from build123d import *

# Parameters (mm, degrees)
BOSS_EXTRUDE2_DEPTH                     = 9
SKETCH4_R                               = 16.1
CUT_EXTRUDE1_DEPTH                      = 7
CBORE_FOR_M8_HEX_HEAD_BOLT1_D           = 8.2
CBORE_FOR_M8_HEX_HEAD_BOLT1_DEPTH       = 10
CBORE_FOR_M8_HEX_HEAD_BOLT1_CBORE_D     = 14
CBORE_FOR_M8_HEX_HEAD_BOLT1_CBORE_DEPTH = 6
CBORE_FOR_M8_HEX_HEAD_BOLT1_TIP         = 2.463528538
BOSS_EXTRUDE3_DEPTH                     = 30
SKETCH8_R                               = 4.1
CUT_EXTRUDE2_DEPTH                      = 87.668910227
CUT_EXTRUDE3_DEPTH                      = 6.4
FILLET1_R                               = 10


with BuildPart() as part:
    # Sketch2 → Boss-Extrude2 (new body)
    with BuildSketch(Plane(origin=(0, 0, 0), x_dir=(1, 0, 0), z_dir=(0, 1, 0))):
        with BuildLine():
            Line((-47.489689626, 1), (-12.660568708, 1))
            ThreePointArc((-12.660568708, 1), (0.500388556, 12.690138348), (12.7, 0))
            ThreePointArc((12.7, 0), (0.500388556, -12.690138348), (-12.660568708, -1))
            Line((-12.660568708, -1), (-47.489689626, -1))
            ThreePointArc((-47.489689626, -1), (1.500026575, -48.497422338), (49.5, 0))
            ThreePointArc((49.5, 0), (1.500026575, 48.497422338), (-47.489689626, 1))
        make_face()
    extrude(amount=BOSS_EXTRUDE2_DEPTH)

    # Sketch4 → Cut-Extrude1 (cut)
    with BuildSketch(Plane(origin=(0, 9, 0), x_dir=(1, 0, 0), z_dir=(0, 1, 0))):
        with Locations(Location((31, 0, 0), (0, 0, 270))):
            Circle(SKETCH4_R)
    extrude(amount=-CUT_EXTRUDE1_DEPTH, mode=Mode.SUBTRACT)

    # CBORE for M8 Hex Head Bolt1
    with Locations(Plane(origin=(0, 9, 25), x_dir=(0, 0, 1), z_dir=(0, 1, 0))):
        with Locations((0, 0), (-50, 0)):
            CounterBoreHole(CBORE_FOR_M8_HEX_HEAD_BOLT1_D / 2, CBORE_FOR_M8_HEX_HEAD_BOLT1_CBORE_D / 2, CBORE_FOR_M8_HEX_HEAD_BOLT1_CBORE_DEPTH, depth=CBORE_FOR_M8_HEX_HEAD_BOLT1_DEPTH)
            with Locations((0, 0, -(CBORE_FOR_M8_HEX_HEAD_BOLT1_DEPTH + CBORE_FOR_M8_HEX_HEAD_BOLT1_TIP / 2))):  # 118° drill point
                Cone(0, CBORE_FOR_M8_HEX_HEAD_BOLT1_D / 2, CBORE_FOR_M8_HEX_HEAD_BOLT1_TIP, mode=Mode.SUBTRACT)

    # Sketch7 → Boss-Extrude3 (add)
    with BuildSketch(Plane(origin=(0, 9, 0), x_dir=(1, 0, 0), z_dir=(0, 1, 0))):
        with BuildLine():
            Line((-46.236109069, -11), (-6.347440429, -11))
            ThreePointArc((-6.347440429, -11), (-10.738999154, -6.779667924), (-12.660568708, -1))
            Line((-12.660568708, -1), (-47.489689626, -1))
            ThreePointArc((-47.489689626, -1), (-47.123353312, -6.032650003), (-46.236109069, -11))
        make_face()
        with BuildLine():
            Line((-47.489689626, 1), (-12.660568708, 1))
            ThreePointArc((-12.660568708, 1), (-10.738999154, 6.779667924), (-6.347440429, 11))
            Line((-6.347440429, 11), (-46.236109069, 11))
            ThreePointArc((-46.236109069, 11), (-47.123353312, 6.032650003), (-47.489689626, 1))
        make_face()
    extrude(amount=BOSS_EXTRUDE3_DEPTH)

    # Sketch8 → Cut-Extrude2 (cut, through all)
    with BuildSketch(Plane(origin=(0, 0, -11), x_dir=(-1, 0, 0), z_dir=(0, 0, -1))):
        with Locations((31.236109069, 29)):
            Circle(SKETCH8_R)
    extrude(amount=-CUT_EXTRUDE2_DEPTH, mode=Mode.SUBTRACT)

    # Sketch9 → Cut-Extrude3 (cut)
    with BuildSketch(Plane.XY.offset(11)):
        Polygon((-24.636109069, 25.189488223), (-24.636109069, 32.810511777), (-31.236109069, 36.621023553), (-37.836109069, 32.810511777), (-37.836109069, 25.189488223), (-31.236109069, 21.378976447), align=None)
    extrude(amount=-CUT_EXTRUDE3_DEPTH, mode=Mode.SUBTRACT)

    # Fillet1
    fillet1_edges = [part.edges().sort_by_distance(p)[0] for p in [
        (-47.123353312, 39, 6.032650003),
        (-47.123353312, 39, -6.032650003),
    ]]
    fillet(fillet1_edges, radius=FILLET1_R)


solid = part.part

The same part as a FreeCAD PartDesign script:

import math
import FreeCAD as App
import Part
import Sketcher
Q = App.Units.Quantity


def edges_at(feature, points):
    """Names of the edges that pass closest to the given points."""
    edges = feature.Shape.Edges
    near = lambda p: min(range(len(edges)), key=lambda i: edges[i].distToShape(Part.Vertex(*p))[0])
    return sorted({f"Edge{near(p) + 1}" for p in points})

doc = App.newDocument("Part")
body = doc.addObject("PartDesign::Body", "Body")

sketch1 = body.newObject("Sketcher::SketchObject", "Sketch")
sketch1.AttachmentSupport = (doc.getObject("XZ_Plane"), [""])
sketch1.MapMode = "FlatFace"
sketch1.addGeometry([
    Part.LineSegment(App.Vector(-47, -1, 0), App.Vector(-13, -1, 0)),
    Part.ArcOfCircle(Part.Circle(App.Vector(0, 0, 0), App.Vector(0, 0, 1), 13), math.radians(-175), math.radians(0)),
    Part.ArcOfCircle(Part.Circle(App.Vector(0, 0, 0), App.Vector(0, 0, 1), 13), math.radians(0), math.radians(175)),
    Part.LineSegment(App.Vector(-13, 1, 0), App.Vector(-47, 1, 0)),
    Part.ArcOfCircle(Part.Circle(App.Vector(1, 0, 0), App.Vector(0, 0, 1), 48), math.radians(0), math.radians(179)),
    Part.ArcOfCircle(Part.Circle(App.Vector(1, 0, 0), App.Vector(0, 0, 1), 48), math.radians(-179), math.radians(0)),
], False)
sketch1.addConstraint([
    Sketcher.Constraint("Coincident", 0, 2, 1, 1),
    Sketcher.Constraint("Tangent", 1, 2, 2, 1),
    Sketcher.Constraint("Coincident", 2, 2, 3, 1),
    Sketcher.Constraint("Coincident", 3, 2, 4, 2),
    Sketcher.Constraint("Tangent", 4, 1, 5, 2),
    Sketcher.Constraint("Coincident", 5, 1, 0, 1),
    Sketcher.Constraint("Horizontal", 0),
    Sketcher.Constraint("Horizontal", 3),
    Sketcher.Constraint("Coincident", 1, 3, -1, 1),
    Sketcher.Constraint("Equal", 1, 2),
    Sketcher.Constraint("Equal", 4, 5),
    Sketcher.Constraint("Symmetric", 3, 2, 5, 1, -1),
    Sketcher.Constraint("PointOnObject", 1, 2, -1),
    Sketcher.Constraint("PointOnObject", 4, 1, -1),
    Sketcher.Constraint("Radius", 1, 12.7),
    Sketcher.Constraint("Radius", 4, 48.5),
    Sketcher.Constraint("DistanceX", -1, 1, 4, 3, 1.0),
    Sketcher.Constraint("DistanceY", 0, 2, -1, 1, 1.0),
])
pad1 = body.newObject("PartDesign::Pad", "Pad")
pad1.Profile = sketch1
pad1.Length = 9
pad1.Reversed = True

sketch2 = body.newObject("Sketcher::SketchObject", "Sketch001")
sketch2.AttachmentSupport = (doc.getObject("XZ_Plane"), [""])
sketch2.MapMode = "FlatFace"
sketch2.AttachmentOffset = App.Placement(App.Vector(0, 0, -9), App.Rotation())
sketch2.addGeometry(Part.Circle(App.Vector(31, 0, 0), App.Vector(0, 0, 1), 16), False)
sketch2.addConstraint([
    Sketcher.Constraint("PointOnObject", 0, 3, -1),
    Sketcher.Constraint("Diameter", 0, 32.2),
    Sketcher.Constraint("DistanceX", -1, 1, 0, 3, 31.0),
])
pocket1 = body.newObject("PartDesign::Pocket", "Pocket")
pocket1.Profile = sketch2
pocket1.Length = 7
pocket1.Reversed = True

sketch3 = body.newObject("Sketcher::SketchObject", "Sketch002")
sketch3.AttachmentSupport = (doc.getObject("XZ_Plane"), [""])
sketch3.MapMode = "FlatFace"
sketch3.AttachmentOffset = App.Placement(App.Vector(0, 0, -9), App.Rotation())
sketch3.addGeometry([
    Part.Circle(App.Vector(0, 25, 0), App.Vector(0, 0, 1), 4.1),
    Part.Circle(App.Vector(0, -25, 0), App.Vector(0, 0, 1), 4.1),
], False)
sketch3.addConstraint([
    Sketcher.Constraint("Equal", 0, 1),
    Sketcher.Constraint("Symmetric", 0, 3, 1, 3, -1, 1),
    Sketcher.Constraint("PointOnObject", 0, 3, -2),
    Sketcher.Constraint("Diameter", 0, 8.2),
    Sketcher.Constraint("DistanceY", -1, 1, 0, 3, 25.0),
])
doc.recompute()
hole = body.newObject("PartDesign::Hole", "Hole")
hole.Profile = sketch3
hole.ThreadType = "None"
hole.Diameter = 8.2
hole.DepthType = "Dimension"
hole.Depth = 10
hole.DrillPoint = "Angled"
hole.DrillPointAngle = 118
hole.HoleCutType = "Counterbore"
hole.HoleCutDiameter = 14
hole.HoleCutDepth = 6
hole.Reversed = True

sketch4 = body.newObject("Sketcher::SketchObject", "Sketch003")
sketch4.AttachmentSupport = (doc.getObject("XZ_Plane"), [""])
sketch4.MapMode = "FlatFace"
sketch4.AttachmentOffset = App.Placement(App.Vector(0, 0, -9), App.Rotation())
sketch4.addGeometry([
    Part.LineSegment(App.Vector(-46, 11, 0), App.Vector(-6, 11, 0)),
    Part.ArcOfCircle(Part.Circle(App.Vector(0, 0, 0), App.Vector(0, 0, 1), 13), math.radians(120), math.radians(175)),
    Part.LineSegment(App.Vector(-13, 1, 0), App.Vector(-47, 1, 0)),
    Part.ArcOfCircle(Part.Circle(App.Vector(1, 0, 0), App.Vector(0, 0, 1), 48), math.radians(166.89), math.radians(178.82)),
    Part.LineSegment(App.Vector(-47, -1, 0), App.Vector(-13, -1, 0)),
    Part.ArcOfCircle(Part.Circle(App.Vector(0, 0, 0), App.Vector(0, 0, 1), 13), math.radians(-175), math.radians(-120)),
    Part.LineSegment(App.Vector(-6, -11, 0), App.Vector(-46, -11, 0)),
    Part.ArcOfCircle(Part.Circle(App.Vector(1, 0, 0), App.Vector(0, 0, 1), 48), math.radians(-178.82), math.radians(-166.89)),
], False)
sketch4.addConstraint([
    Sketcher.Constraint("Coincident", 0, 2, 1, 1),
    Sketcher.Constraint("Coincident", 1, 2, 2, 1),
    Sketcher.Constraint("Coincident", 2, 2, 3, 2),
    Sketcher.Constraint("Coincident", 3, 1, 0, 1),
    Sketcher.Constraint("Coincident", 4, 2, 5, 1),
    Sketcher.Constraint("Coincident", 5, 2, 6, 1),
    Sketcher.Constraint("Coincident", 6, 2, 7, 2),
    Sketcher.Constraint("Coincident", 7, 1, 4, 1),
    Sketcher.Constraint("Horizontal", 0),
    Sketcher.Constraint("Horizontal", 2),
    Sketcher.Constraint("Horizontal", 4),
    Sketcher.Constraint("Horizontal", 6),
    Sketcher.Constraint("Coincident", 1, 3, -1, 1),
    Sketcher.Constraint("Coincident", 5, 3, -1, 1),
    Sketcher.Constraint("Coincident", 7, 3, 3, 3),
    Sketcher.Constraint("Equal", 1, 5),
    Sketcher.Constraint("Equal", 3, 7),
    Sketcher.Constraint("Symmetric", 3, 1, 6, 2, -1),
    Sketcher.Constraint("Vertical", 1, 2, 4, 2),
    Sketcher.Constraint("Radius", 1, 12.7),
    Sketcher.Constraint("Radius", 3, 48.5),
    Sketcher.Constraint("DistanceX", -1, 1, 3, 3, 1.0),
    Sketcher.Constraint("DistanceY", -1, 1, 0, 2, 11.0),
    Sketcher.Constraint("DistanceY", -1, 1, 1, 2, 1.0),
])
pad2 = body.newObject("PartDesign::Pad", "Pad001")
pad2.Profile = sketch4
pad2.Length = 30
pad2.Reversed = True

sketch5 = body.newObject("Sketcher::SketchObject", "Sketch004")
sketch5.AttachmentSupport = (doc.getObject("XY_Plane"), [""])
sketch5.MapMode = "FlatFace"
sketch5.AttachmentOffset = App.Placement(App.Vector(0, 0, -11), App.Rotation())
sketch5.addGeometry(Part.Circle(App.Vector(-31.2, 29, 0), App.Vector(0, 0, 1), 4.1), False)
sketch5.addConstraint([
    Sketcher.Constraint("Diameter", 0, 8.2),
    Sketcher.Constraint("DistanceY", -1, 1, 0, 3, 29.0),
    Sketcher.Constraint("DistanceX", 0, 3, -1, 1, 31.236109),
])
pocket2 = body.newObject("PartDesign::Pocket", "Pocket001")
pocket2.Profile = sketch5
pocket2.Type = "ThroughAll"
pocket2.Reversed = True

sketch6 = body.newObject("Sketcher::SketchObject", "Sketch005")
sketch6.AttachmentSupport = (doc.getObject("XY_Plane"), [""])
sketch6.MapMode = "FlatFace"
sketch6.AttachmentOffset = App.Placement(App.Vector(0, 0, 11), App.Rotation())
sketch6.addGeometry([
    Part.LineSegment(App.Vector(-25, 25, 0), App.Vector(-25, 33, 0)),
    Part.LineSegment(App.Vector(-25, 33, 0), App.Vector(-31, 37, 0)),
    Part.LineSegment(App.Vector(-31, 37, 0), App.Vector(-38, 33, 0)),
    Part.LineSegment(App.Vector(-38, 33, 0), App.Vector(-38, 25, 0)),
    Part.LineSegment(App.Vector(-38, 25, 0), App.Vector(-31, 21, 0)),
    Part.LineSegment(App.Vector(-31, 21, 0), App.Vector(-25, 25, 0)),
], False)
sketch6.addConstraint([
    Sketcher.Constraint("Coincident", 0, 2, 1, 1),
    Sketcher.Constraint("Coincident", 1, 2, 2, 1),
    Sketcher.Constraint("Coincident", 2, 2, 3, 1),
    Sketcher.Constraint("Coincident", 3, 2, 4, 1),
    Sketcher.Constraint("Coincident", 4, 2, 5, 1),
    Sketcher.Constraint("Coincident", 5, 2, 0, 1),
    Sketcher.Constraint("Vertical", 0),
    Sketcher.Constraint("Vertical", 3),
    Sketcher.Constraint("Parallel", 1, 4),
    Sketcher.Constraint("Parallel", 2, 5),
    Sketcher.Constraint("Horizontal", 0, 2, 2, 2),
    Sketcher.Constraint("Horizontal", 3, 2, 5, 2),
    Sketcher.Constraint("Vertical", 1, 2, 4, 2),
    Sketcher.Constraint("Angle", 1, Q("150 deg")),
    Sketcher.Constraint("DistanceX", 1, 2, 0, 2, 6.6),
    Sketcher.Constraint("DistanceY", 0, 1, 0, 2, 7.621024),
    Sketcher.Constraint("DistanceX", 0, 2, -1, 1, 24.636109),
    Sketcher.Constraint("DistanceY", -1, 1, 0, 2, 32.810512),
])
pocket3 = body.newObject("PartDesign::Pocket", "Pocket002")
pocket3.Profile = sketch6
pocket3.Length = 6.4
doc.recompute()

fillet = body.newObject("PartDesign::Fillet", "Fillet")
fillet.Base = (pocket3, edges_at(pocket3, [(-47.123, 39, 6.033), (-47.123, 39, -6.033)]))
fillet.Radius = 10

doc.recompute()
